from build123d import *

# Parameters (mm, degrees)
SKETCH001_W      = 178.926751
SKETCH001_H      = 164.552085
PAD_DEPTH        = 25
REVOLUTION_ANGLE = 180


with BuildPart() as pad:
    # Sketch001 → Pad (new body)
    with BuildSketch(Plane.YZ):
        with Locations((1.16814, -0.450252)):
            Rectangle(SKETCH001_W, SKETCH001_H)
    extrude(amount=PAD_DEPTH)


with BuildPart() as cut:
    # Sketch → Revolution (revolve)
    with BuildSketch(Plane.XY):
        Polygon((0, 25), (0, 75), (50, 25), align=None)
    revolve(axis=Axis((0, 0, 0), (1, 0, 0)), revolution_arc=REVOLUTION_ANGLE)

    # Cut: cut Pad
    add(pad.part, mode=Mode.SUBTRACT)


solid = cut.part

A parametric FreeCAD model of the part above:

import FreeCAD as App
import Part
import Sketcher
from FreeCAD import Vector
Q = App.Units.Quantity

doc = App.newDocument("Part")
params = doc.addObject("Spreadsheet::Sheet", "Params")
for row, (alias, value) in enumerate([
    ("pad1_length", "25 mm"),
    ("sketch2_width", "50 mm"),
    ("revolution_angle", "180 deg"),
], start=1):
    params.set(f"A{row}", alias)
    params.set(f"B{row}", "=" + value)
    params.setAlias(f"B{row}", alias)

body = doc.addObject("PartDesign::Body", "Body")

# Sketch on YZ plane
sketch1 = body.newObject("Sketcher::SketchObject", "Sketch")
sketch1.AttachmentSupport = (doc.getObject("YZ_Plane"), [""])
sketch1.MapMode = "FlatFace"
sketch1.addGeometry([
    Part.LineSegment(Vector(-88, 82, 0), Vector(-88, -83, 0)),
    Part.LineSegment(Vector(-88, -83, 0), Vector(91, -83, 0)),
    Part.LineSegment(Vector(91, -83, 0), Vector(91, 82, 0)),
    Part.LineSegment(Vector(91, 82, 0), Vector(-88, 82, 0)),
], False)
sketch1.addConstraint([
    Sketcher.Constraint("Coincident", 0, 2, 1, 1),
    Sketcher.Constraint("Coincident", 1, 2, 2, 1),
    Sketcher.Constraint("Coincident", 2, 2, 3, 1),
    Sketcher.Constraint("Coincident", 3, 2, 0, 1),
    Sketcher.Constraint("Vertical", 0),
    Sketcher.Constraint("Horizontal", 1),
    Sketcher.Constraint("Vertical", 2),
    Sketcher.Constraint("Horizontal", 3),
    Sketcher.Constraint("DistanceX", 1, 1, 1, 2, Q("178.926751 mm")),
    Sketcher.Constraint("DistanceY", 0, 2, 0, 1, Q("164.552085 mm")),
    Sketcher.Constraint("DistanceY", -1, 1, 2, 2, Q("81.82579 mm")),
    Sketcher.Constraint("DistanceX", 0, 2, -1, 1, Q("88.295236 mm")),
])
pad1 = body.newObject("PartDesign::Pad", "Pad")
pad1.Profile = sketch1
pad1.setExpression("Length", "Params.pad1_length")
body2 = doc.addObject("PartDesign::Body", "Body001")

# Sketch on XY plane
sketch2 = body2.newObject("Sketcher::SketchObject", "Sketch001")
sketch2.AttachmentSupport = (doc.getObject("XY_Plane001"), [""])
sketch2.MapMode = "FlatFace"
sketch2.addGeometry([
    Part.LineSegment(Vector(0, 75, 0), Vector(0, 25, 0)),
    Part.LineSegment(Vector(0, 25, 0), Vector(50, 25, 0)),
    Part.LineSegment(Vector(50, 25, 0), Vector(0, 75, 0)),
], False)
sketch2.addConstraint([
    Sketcher.Constraint("Coincident", 0, 2, 1, 1),
    Sketcher.Constraint("Coincident", 1, 2, 2, 1),
    Sketcher.Constraint("Coincident", 2, 2, 0, 1),
    Sketcher.Constraint("Vertical", 0),
    Sketcher.Constraint("Horizontal", 1),
    Sketcher.Constraint("PointOnObject", 0, 2, -2),
    Sketcher.Constraint("Equal", 1, 0),
    Sketcher.Constraint("DistanceX", 1, 1, 1, 2, Q("50 mm")),
    Sketcher.Constraint("DistanceY", -1, 1, 0, 2, Q("25 mm")),
])
sketch2.setExpression("Constraints[7]", "Params.sketch2_width")
revolution = body2.newObject("PartDesign::Revolution", "Revolution")
revolution.Profile = sketch2
revolution.ReferenceAxis = (sketch2, ["H_Axis"])
revolution.setExpression("Angle", "Params.revolution_angle")
doc.recompute()

boolean = body2.newObject("PartDesign::Boolean", "Boolean")
boolean.Type = "Cut"
boolean.addObjects([body])

doc.recompute()
